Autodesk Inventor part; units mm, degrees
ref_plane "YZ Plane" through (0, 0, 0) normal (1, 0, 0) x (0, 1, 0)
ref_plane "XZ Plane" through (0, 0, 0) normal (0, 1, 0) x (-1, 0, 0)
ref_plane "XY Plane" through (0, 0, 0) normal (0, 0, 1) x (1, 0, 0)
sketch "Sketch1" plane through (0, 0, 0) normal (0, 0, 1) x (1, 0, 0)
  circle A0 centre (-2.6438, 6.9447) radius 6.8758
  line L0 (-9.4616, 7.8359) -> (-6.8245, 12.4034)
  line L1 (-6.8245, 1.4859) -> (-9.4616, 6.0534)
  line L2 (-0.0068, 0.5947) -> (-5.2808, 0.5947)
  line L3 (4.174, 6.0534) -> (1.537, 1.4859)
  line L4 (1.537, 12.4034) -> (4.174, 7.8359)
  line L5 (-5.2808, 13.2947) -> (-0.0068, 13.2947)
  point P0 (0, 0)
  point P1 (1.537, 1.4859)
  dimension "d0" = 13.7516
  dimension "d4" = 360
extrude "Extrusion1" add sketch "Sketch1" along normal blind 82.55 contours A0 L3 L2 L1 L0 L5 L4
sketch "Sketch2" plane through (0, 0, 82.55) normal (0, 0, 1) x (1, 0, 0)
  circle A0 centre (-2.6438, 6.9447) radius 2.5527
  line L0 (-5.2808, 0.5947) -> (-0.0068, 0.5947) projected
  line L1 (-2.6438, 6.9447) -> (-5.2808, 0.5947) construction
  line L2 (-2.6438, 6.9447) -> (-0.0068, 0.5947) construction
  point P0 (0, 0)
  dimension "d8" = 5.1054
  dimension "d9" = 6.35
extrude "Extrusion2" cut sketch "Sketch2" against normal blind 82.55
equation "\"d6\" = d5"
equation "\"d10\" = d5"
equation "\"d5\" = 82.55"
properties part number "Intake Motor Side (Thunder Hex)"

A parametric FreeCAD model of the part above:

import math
import FreeCAD as App
import Part
import Sketcher

V = App.Vector
Q = App.Units.Quantity

doc = App.newDocument("Part")
body = doc.addObject("PartDesign::Body", "Body")

# Sketch on XY plane
sketch1 = body.newObject("Sketcher::SketchObject", "Sketch")
sketch1.AttachmentSupport = (doc.getObject("XY_Plane"), [""])
sketch1.MapMode = "FlatFace"
sketch1.addGeometry([
    Part.ArcOfCircle(Part.Circle(V(-2.6, 6.9, 0), V(0, 0, 1), 6.9), math.radians(-7.45), math.radians(7.45)),  # 0
    Part.LineSegment(V(4.2, 7.8, 0), V(1.5, 12.4, 0)),  # 1
    Part.ArcOfCircle(Part.Circle(V(-2.6, 6.9, 0), V(0, 0, 1), 6.9), math.radians(52.55), math.radians(67.45)),  # 2
    Part.LineSegment(V(0, 13.3, 0), V(-5.3, 13.3, 0)),  # 3
    Part.ArcOfCircle(Part.Circle(V(-2.6, 6.9, 0), V(0, 0, 1), 6.9), math.radians(112.55), math.radians(127.45)),  # 4
    Part.LineSegment(V(-6.8, 12.4, 0), V(-9.5, 7.8, 0)),  # 5
    Part.ArcOfCircle(Part.Circle(V(-2.6, 6.9, 0), V(0, 0, 1), 6.9), math.radians(172.55), math.radians(187.45)),  # 6
    Part.LineSegment(V(-9.5, 6.1, 0), V(-6.8, 1.5, 0)),  # 7
    Part.ArcOfCircle(Part.Circle(V(-2.6, 6.9, 0), V(0, 0, 1), 6.9), math.radians(-127.45), math.radians(-112.55)),  # 8
    Part.LineSegment(V(-5.3, 0.6, 0), V(0, 0.6, 0)),  # 9
    Part.ArcOfCircle(Part.Circle(V(-2.6, 6.9, 0), V(0, 0, 1), 6.9), math.radians(-67.45), math.radians(-52.55)),  # 10
    Part.LineSegment(V(1.5, 1.5, 0), V(4.2, 6.1, 0)),  # 11
], False)
sketch1.addConstraint([
    Sketcher.Constraint("Coincident", 0, 2, 1, 1),
    Sketcher.Constraint("Coincident", 1, 2, 2, 1),
    Sketcher.Constraint("Coincident", 2, 2, 3, 1),
    Sketcher.Constraint("Coincident", 3, 2, 4, 1),
    Sketcher.Constraint("Coincident", 4, 2, 5, 1),
    Sketcher.Constraint("Coincident", 5, 2, 6, 1),
    Sketcher.Constraint("Coincident", 6, 2, 7, 1),
    Sketcher.Constraint("Coincident", 7, 2, 8, 1),
    Sketcher.Constraint("Coincident", 8, 2, 9, 1),
    Sketcher.Constraint("Coincident", 9, 2, 10, 1),
    Sketcher.Constraint("Coincident", 10, 2, 11, 1),
    Sketcher.Constraint("Coincident", 11, 2, 0, 1),
    Sketcher.Constraint("Horizontal", 3),
    Sketcher.Constraint("Horizontal", 9),
    Sketcher.Constraint("Coincident", 2, 3, 0, 3),
    Sketcher.Constraint("Coincident", 4, 3, 0, 3),
    Sketcher.Constraint("Coincident", 6, 3, 0, 3),
    Sketcher.Constraint("Coincident", 8, 3, 0, 3),
    Sketcher.Constraint("Coincident", 10, 3, 0, 3),
    Sketcher.Constraint("Equal", 0, 2),
    Sketcher.Constraint("Equal", 2, 4),
    Sketcher.Constraint("Equal", 4, 6),
    Sketcher.Constraint("Equal", 6, 8),
    Sketcher.Constraint("Equal", 8, 10),
    Sketcher.Constraint("Parallel", 1, 7),
    Sketcher.Constraint("Parallel", 5, 11),
    Sketcher.Constraint("Horizontal", 1, 2, 4, 2),
    Sketcher.Constraint("Horizontal", 0, 2, 5, 2),
    Sketcher.Constraint("Horizontal", 7, 2, 10, 2),
    Sketcher.Constraint("Vertical", 5, 2, 6, 2),
    Sketcher.Constraint("Vertical", 3, 2, 8, 2),
    Sketcher.Constraint("Radius", 0, Q("0.2707 in")),
    Sketcher.Constraint("Angle", 1, Q("119.9996 deg")),
    Sketcher.Constraint("DistanceY", 0, 3, 2, 2, Q("0.25 in")),
    Sketcher.Constraint("DistanceY", 10, 2, 0, 2, Q("0.25 in")),
    Sketcher.Constraint("DistanceY", -1, 1, 0, 2, Q("0.3085 in")),
    Sketcher.Constraint("DistanceX", -1, 1, 1, 2, Q("0.0605 in")),
])
pad1 = body.newObject("PartDesign::Pad", "Pad")
pad1.Profile = sketch1
pad1.Length = Q("3.25 in")

# Sketch on XY plane
sketch2 = body.newObject("Sketcher::SketchObject", "Sketch001")
sketch2.AttachmentSupport = (doc.getObject("XY_Plane"), [""])
sketch2.MapMode = "FlatFace"
sketch2.AttachmentOffset = App.Placement(V(0, 0, 3.25 * 25.4), App.Rotation())
sketch2.addGeometry(Part.Circle(V(-2.6, 6.9, 0), V(0, 0, 1), 2.6), False)
sketch2.addConstraint([
    Sketcher.Constraint("Diameter", 0, Q("0.201 in")),
    Sketcher.Constraint("DistanceX", 0, 3, -1, 1, 2.6438),
    Sketcher.Constraint("DistanceY", -1, 1, 0, 3, 6.9447),
])
pocket1 = body.newObject("PartDesign::Pocket", "Pocket")
pocket1.Profile = sketch2
pocket1.Length = Q("3.25 in")

doc.recompute()
